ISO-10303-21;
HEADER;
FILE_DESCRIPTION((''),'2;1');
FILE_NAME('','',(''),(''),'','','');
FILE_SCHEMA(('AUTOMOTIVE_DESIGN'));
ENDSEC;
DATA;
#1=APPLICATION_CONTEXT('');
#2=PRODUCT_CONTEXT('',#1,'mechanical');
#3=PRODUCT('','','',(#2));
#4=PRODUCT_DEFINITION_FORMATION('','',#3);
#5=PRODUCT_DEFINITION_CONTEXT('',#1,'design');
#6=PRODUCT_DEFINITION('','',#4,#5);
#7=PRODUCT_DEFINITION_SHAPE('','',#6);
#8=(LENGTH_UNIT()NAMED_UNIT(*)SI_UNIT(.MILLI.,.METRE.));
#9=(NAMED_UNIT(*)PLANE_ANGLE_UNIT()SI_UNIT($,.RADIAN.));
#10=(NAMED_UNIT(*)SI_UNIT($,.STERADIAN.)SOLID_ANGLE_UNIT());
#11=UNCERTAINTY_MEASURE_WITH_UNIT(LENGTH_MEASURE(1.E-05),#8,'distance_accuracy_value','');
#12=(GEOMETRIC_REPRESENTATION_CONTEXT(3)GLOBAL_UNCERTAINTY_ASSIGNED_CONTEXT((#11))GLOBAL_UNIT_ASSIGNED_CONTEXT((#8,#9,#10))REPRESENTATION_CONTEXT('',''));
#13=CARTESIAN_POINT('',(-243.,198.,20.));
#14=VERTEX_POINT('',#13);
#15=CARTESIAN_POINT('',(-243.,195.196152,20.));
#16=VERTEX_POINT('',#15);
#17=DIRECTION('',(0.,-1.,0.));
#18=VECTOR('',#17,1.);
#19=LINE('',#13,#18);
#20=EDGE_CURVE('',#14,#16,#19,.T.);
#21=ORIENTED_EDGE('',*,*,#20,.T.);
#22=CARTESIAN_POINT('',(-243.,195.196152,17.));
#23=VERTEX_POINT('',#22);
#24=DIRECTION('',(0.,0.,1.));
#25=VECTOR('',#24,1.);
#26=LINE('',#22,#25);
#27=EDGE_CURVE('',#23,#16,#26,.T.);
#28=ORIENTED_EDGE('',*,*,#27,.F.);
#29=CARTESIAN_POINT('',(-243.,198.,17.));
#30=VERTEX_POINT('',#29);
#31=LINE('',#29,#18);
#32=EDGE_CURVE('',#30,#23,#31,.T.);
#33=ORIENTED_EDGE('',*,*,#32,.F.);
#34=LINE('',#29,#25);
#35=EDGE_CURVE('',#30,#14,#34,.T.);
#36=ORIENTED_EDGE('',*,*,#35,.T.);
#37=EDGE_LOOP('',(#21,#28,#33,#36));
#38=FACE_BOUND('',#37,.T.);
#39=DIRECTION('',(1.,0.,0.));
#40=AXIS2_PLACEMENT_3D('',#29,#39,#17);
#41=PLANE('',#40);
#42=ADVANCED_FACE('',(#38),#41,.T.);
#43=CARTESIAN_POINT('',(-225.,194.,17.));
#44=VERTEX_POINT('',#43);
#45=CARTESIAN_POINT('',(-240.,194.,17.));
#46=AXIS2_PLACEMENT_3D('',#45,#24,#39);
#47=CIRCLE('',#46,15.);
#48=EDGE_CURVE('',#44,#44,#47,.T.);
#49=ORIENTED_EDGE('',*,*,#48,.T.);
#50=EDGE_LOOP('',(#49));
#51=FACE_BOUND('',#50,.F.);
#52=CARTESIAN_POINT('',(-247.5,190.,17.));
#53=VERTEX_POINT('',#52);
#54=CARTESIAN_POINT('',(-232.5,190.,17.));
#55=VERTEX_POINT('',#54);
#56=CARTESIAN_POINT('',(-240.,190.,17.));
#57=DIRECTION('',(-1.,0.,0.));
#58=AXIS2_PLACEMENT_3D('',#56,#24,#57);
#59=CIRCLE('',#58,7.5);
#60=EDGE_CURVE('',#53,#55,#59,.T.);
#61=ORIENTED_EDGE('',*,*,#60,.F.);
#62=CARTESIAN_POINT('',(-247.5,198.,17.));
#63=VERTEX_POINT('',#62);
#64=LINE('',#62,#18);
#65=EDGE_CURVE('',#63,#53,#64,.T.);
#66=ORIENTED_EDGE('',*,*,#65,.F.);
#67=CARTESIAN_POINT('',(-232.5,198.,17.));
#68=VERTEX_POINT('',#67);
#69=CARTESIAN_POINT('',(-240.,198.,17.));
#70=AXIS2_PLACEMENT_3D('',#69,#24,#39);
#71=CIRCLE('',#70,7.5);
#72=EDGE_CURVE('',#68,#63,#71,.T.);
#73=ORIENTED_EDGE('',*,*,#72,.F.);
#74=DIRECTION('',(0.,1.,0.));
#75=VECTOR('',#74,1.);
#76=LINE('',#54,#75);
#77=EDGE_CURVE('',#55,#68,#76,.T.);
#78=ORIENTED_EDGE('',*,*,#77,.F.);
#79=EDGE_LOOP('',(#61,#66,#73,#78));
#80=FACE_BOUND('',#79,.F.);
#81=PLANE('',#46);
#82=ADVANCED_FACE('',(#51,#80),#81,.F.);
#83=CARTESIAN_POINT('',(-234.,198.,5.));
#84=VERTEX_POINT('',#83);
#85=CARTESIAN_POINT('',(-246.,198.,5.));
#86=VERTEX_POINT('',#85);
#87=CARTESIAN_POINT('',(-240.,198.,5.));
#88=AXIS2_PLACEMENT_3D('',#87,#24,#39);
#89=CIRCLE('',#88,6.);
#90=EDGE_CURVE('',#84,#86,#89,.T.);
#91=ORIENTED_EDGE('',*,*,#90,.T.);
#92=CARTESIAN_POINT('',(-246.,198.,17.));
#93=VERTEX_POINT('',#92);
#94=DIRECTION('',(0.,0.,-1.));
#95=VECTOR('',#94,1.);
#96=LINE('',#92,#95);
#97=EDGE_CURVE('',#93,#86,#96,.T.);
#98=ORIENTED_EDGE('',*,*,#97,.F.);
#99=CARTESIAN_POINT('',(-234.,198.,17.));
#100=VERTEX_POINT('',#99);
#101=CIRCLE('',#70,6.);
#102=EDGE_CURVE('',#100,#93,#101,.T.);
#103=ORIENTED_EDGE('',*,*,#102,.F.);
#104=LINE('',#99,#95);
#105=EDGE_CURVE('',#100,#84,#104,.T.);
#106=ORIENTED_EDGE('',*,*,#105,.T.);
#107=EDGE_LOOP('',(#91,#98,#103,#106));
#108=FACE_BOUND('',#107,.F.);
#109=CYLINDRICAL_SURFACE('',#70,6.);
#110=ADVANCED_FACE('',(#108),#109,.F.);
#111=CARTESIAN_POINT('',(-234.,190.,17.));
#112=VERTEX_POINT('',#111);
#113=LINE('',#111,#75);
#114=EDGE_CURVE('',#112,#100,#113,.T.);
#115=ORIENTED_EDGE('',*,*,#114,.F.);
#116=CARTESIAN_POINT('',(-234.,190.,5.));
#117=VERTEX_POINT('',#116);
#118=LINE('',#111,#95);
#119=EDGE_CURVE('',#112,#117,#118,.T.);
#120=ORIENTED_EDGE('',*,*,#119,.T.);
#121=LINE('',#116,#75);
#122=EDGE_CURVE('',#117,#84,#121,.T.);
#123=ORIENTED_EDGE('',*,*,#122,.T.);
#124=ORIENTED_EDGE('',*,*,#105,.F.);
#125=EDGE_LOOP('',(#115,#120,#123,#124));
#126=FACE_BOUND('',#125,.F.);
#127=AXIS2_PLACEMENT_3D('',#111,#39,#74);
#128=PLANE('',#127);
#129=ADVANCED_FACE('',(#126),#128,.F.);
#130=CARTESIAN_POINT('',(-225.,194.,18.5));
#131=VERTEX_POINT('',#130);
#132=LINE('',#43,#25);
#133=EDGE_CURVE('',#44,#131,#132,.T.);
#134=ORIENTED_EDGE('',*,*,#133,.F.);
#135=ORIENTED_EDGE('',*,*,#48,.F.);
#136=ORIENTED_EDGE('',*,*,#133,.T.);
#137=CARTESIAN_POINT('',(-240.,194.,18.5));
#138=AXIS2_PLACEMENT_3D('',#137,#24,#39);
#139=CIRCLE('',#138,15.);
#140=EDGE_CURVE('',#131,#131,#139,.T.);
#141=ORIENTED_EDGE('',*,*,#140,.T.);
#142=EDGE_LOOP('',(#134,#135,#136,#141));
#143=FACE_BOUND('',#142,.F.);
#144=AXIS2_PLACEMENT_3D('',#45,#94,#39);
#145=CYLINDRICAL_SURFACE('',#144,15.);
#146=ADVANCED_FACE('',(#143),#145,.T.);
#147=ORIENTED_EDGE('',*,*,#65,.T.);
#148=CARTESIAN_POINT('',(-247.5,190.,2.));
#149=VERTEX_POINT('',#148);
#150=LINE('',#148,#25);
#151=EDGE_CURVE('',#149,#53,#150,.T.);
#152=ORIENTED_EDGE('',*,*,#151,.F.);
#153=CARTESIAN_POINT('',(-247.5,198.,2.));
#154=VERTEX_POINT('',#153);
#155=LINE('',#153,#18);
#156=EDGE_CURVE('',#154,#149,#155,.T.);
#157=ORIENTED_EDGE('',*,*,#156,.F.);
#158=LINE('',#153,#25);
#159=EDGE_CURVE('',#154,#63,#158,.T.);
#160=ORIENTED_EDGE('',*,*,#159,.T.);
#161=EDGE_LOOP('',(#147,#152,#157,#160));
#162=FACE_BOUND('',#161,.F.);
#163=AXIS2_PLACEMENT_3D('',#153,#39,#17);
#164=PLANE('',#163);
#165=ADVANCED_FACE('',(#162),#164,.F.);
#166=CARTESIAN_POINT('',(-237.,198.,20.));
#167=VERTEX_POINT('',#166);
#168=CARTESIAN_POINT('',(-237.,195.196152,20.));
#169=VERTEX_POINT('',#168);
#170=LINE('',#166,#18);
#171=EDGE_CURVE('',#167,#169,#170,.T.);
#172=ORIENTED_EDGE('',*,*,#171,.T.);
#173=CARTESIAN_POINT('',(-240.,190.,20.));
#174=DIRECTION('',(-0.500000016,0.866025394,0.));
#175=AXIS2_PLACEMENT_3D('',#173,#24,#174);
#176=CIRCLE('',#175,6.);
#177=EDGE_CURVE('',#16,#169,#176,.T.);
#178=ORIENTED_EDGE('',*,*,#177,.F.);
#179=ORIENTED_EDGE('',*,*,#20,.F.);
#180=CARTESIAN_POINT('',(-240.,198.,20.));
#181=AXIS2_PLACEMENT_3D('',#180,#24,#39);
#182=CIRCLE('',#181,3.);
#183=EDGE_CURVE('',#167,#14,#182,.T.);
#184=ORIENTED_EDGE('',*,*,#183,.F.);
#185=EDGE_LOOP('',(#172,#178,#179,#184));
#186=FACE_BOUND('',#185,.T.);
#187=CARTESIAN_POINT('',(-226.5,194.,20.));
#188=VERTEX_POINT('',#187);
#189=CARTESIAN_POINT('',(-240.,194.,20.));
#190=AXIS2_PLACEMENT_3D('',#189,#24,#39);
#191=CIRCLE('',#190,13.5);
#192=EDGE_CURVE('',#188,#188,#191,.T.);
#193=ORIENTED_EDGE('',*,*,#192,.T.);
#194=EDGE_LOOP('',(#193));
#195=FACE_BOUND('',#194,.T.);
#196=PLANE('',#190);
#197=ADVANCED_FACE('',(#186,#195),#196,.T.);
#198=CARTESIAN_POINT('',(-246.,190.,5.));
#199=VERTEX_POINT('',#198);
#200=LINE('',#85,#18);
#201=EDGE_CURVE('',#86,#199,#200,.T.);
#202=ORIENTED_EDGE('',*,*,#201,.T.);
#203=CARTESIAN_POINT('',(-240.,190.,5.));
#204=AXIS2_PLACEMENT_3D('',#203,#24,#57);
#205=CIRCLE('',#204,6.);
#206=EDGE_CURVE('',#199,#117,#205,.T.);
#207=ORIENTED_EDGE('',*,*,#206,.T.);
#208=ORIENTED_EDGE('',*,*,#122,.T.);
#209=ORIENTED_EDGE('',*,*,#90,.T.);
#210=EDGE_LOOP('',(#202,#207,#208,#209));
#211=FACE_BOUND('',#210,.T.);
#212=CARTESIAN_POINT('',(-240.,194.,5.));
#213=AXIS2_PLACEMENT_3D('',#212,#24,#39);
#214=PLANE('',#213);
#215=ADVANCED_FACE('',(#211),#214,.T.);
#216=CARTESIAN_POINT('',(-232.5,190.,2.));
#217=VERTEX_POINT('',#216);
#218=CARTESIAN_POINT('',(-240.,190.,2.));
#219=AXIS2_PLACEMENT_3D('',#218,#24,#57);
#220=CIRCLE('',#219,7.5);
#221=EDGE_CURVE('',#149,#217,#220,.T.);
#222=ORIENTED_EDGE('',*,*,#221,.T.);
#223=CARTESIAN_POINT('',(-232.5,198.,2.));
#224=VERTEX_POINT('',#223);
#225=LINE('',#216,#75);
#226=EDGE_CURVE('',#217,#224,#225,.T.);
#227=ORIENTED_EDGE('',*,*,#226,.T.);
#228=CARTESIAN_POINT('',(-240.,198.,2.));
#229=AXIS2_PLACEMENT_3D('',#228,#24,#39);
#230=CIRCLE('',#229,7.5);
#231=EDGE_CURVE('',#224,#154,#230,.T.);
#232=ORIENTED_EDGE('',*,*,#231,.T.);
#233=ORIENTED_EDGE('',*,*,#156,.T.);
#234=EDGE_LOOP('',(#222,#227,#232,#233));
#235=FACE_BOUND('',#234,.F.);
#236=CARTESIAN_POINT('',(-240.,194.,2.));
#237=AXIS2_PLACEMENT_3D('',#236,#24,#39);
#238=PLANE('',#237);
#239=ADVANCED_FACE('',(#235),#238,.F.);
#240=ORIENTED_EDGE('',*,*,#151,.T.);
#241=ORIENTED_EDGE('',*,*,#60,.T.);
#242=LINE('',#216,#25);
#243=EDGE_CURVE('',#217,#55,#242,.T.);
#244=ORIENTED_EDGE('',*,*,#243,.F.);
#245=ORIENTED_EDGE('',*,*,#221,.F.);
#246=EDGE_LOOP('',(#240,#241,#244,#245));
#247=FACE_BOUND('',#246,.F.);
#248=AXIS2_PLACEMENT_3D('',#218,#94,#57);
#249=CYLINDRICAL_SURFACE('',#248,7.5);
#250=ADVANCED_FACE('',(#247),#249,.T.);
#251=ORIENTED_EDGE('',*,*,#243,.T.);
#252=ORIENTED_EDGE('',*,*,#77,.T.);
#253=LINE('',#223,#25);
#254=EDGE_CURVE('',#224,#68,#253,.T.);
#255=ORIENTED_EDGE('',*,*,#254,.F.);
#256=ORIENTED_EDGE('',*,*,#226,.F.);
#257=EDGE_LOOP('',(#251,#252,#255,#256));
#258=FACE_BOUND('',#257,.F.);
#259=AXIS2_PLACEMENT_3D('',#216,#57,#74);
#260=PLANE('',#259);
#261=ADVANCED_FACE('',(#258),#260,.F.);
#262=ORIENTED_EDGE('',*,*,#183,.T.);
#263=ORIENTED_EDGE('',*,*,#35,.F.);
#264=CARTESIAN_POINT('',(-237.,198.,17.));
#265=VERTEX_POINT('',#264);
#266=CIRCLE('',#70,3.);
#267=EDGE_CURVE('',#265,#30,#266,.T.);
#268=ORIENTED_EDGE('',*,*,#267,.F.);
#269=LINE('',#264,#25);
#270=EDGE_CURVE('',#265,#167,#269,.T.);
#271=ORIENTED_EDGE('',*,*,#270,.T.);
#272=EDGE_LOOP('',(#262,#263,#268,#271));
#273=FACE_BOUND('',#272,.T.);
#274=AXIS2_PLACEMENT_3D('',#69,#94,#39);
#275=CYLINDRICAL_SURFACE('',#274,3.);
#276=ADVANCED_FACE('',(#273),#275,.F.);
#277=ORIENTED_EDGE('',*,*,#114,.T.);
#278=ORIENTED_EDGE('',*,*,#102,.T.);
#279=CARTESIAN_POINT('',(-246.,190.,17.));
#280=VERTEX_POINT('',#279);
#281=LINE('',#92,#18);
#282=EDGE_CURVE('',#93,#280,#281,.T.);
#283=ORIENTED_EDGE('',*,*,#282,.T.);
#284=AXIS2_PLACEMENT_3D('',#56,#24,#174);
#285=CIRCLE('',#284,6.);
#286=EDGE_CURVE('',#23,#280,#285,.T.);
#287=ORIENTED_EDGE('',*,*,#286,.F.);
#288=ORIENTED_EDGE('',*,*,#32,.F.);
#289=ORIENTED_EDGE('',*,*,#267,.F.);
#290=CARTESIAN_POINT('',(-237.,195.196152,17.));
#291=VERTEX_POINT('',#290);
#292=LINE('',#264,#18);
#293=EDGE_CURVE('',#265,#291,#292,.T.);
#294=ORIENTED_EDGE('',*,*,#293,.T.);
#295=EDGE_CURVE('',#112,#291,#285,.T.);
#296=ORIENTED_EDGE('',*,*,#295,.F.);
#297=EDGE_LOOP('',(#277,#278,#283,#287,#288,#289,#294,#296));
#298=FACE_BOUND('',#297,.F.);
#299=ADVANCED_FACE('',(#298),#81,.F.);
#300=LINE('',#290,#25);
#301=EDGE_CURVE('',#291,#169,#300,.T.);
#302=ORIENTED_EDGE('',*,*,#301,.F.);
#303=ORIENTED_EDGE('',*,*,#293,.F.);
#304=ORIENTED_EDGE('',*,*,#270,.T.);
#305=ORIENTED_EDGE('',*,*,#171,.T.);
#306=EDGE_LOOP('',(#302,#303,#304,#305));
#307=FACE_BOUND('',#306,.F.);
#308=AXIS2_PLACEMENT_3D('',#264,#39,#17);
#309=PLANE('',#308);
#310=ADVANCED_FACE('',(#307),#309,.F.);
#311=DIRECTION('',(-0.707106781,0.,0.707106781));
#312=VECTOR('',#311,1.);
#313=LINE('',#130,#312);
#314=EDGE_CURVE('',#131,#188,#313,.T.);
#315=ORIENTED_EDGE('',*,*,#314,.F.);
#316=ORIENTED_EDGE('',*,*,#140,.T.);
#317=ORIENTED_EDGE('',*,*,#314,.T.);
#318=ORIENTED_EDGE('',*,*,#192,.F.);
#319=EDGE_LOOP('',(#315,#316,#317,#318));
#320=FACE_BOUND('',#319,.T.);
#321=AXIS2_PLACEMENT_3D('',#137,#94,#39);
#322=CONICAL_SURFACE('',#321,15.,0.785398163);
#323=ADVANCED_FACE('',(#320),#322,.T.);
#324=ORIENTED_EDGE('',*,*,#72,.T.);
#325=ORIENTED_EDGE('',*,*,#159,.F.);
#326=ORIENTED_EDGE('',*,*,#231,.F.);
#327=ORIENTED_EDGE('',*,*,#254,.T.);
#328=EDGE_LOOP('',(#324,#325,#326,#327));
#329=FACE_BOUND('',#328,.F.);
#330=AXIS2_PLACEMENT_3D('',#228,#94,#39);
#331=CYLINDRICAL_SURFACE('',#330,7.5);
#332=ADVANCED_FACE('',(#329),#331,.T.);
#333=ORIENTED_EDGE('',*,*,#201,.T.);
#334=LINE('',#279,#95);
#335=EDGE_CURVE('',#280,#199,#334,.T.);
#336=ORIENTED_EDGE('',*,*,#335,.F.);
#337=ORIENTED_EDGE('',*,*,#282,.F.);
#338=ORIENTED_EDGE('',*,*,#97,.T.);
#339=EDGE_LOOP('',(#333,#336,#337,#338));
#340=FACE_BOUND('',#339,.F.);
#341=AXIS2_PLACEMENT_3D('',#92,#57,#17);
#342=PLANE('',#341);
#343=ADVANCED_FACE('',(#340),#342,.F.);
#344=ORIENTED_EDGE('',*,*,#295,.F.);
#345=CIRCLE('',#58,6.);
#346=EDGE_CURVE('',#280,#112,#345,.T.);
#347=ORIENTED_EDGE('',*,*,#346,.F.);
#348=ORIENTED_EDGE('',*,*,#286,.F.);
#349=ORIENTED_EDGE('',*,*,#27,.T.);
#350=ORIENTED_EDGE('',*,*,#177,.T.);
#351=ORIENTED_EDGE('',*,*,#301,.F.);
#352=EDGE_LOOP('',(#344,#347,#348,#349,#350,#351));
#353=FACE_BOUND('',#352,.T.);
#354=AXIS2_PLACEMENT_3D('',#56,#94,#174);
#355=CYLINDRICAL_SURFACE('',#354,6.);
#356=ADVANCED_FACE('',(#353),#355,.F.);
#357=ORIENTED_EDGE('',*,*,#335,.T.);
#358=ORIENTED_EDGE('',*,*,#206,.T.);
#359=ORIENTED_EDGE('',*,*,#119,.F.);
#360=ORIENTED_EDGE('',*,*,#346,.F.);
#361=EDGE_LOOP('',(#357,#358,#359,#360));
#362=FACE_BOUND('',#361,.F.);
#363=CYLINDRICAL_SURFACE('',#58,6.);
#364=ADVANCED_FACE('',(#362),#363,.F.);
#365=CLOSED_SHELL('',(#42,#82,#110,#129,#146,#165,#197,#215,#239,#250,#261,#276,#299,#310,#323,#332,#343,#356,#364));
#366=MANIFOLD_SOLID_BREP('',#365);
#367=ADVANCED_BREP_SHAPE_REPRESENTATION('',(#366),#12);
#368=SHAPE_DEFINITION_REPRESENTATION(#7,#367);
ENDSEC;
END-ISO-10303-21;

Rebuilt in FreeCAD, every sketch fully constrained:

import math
import FreeCAD as App
import Part
import Sketcher
from FreeCAD import Vector
Q = App.Units.Quantity


def edges_at(feature, points):
    """Names of the edges that pass closest to the given points."""
    edges = feature.Shape.Edges
    near = lambda p: min(range(len(edges)), key=lambda i: edges[i].distToShape(Part.Vertex(*p))[0])
    return sorted({f"Edge{near(p) + 1}" for p in points})

doc = App.newDocument("Part")
body = doc.addObject("PartDesign::Body", "Body")

# Sketch on XY plane
sketch1 = doc.addObject("Sketcher::SketchObject", "Sketch")
body.addObject(sketch1)
sketch1.AttachmentSupport = (doc.XY_Plane, [""])
sketch1.MapMode = "FlatFace"
sketch1.addGeometry(Part.ArcOfCircle(Part.Circle(Vector(0, 8, 0), Vector(0, 0, 1), 8), math.radians(0), math.radians(180)), False)
sketch1.addGeometry(Part.LineSegment(Vector(-8, 8, 0), Vector(-8, 0, 0)), False)
sketch1.addGeometry(Part.ArcOfCircle(Part.Circle(Vector(0, 0, 0), Vector(0, 0, 1), 8), math.radians(180), math.radians(360)), False)
sketch1.addGeometry(Part.LineSegment(Vector(8, 0, 0), Vector(8, 8, 0)), False)
sketch1.addConstraint(Sketcher.Constraint("Tangent", 0, 2, 1, 1))
sketch1.addConstraint(Sketcher.Constraint("Tangent", 1, 2, 2, 1))
sketch1.addConstraint(Sketcher.Constraint("Tangent", 2, 2, 3, 1))
sketch1.addConstraint(Sketcher.Constraint("Tangent", 3, 2, 0, 1))
sketch1.addConstraint(Sketcher.Constraint("Vertical", 1))
sketch1.addConstraint(Sketcher.Constraint("Vertical", 3))
sketch1.addConstraint(Sketcher.Constraint("Coincident", 2, 3, -1, 1))
sketch1.addConstraint(Sketcher.Constraint("Radius", 0, Q("7.5 mm")))
sketch1.addConstraint(Sketcher.Constraint("DistanceY", 1, 2, 1, 1, Q("8 mm")))
pad1 = doc.addObject("PartDesign::Pad", "Pad")
body.addObject(pad1)
pad1.Profile = sketch1
pad1.Length = 15

# Sketch on XY plane
sketch2 = doc.addObject("Sketcher::SketchObject", "Sketch001")
body.addObject(sketch2)
sketch2.AttachmentSupport = (doc.XY_Plane, [""])
sketch2.MapMode = "FlatFace"
sketch2.AttachmentOffset = App.Placement(Vector(0, 0, 15), App.Rotation())
sketch2.addGeometry(Part.ArcOfCircle(Part.Circle(Vector(0, 0, 0), Vector(0, 0, 1), 6), math.radians(180), math.radians(360)), False)
sketch2.addGeometry(Part.LineSegment(Vector(6, 0, 0), Vector(6, 8, 0)), False)
sketch2.addGeometry(Part.ArcOfCircle(Part.Circle(Vector(0, 8, 0), Vector(0, 0, 1), 6), math.radians(0), math.radians(180)), False)
sketch2.addGeometry(Part.LineSegment(Vector(-6, 8, 0), Vector(-6, 0, 0)), False)
sketch2.addConstraint(Sketcher.Constraint("Tangent", 0, 2, 1, 1))
sketch2.addConstraint(Sketcher.Constraint("Tangent", 1, 2, 2, 1))
sketch2.addConstraint(Sketcher.Constraint("Tangent", 2, 2, 3, 1))
sketch2.addConstraint(Sketcher.Constraint("Tangent", 3, 2, 0, 1))
sketch2.addConstraint(Sketcher.Constraint("Vertical", 1))
sketch2.addConstraint(Sketcher.Constraint("Vertical", 3))
sketch2.addConstraint(Sketcher.Constraint("Coincident", 0, 3, -1, 1))
sketch2.addConstraint(Sketcher.Constraint("Radius", 0, Q("6 mm")))
sketch2.addConstraint(Sketcher.Constraint("DistanceY", 1, 1, 1, 2, Q("8 mm")))
pocket1 = doc.addObject("PartDesign::Pocket", "Pocket")
body.addObject(pocket1)
pocket1.Profile = sketch2
pocket1.Length = 12

# Sketch on XY plane
sketch3 = doc.addObject("Sketcher::SketchObject", "Sketch002")
body.addObject(sketch3)
sketch3.AttachmentSupport = (doc.XY_Plane, [""])
sketch3.MapMode = "FlatFace"
sketch3.AttachmentOffset = App.Placement(Vector(0, 0, 15), App.Rotation())
sketch3.addGeometry(Part.Circle(Vector(0, 4, 0), Vector(0, 0, 1), 15), False)
sketch3.addGeometry(Part.ArcOfCircle(Part.Circle(Vector(0, 0, 0), Vector(0, 0, 1), 6), math.radians(120), math.radians(420)), False)
sketch3.addGeometry(Part.LineSegment(Vector(-3, 5.2, 0), Vector(-3, 8, 0)), False)
sketch3.addGeometry(Part.ArcOfCircle(Part.Circle(Vector(0, 8, 0), Vector(0, 0, 1), 3), math.radians(0), math.radians(180)), False)
sketch3.addGeometry(Part.LineSegment(Vector(3, 8, 0), Vector(3, 5.2, 0)), False)
sketch3.addConstraint(Sketcher.Constraint("Coincident", 1, 1, 2, 1))
sketch3.addConstraint(Sketcher.Constraint("Tangent", 2, 2, 3, 2))
sketch3.addConstraint(Sketcher.Constraint("Tangent", 3, 1, 4, 1))
sketch3.addConstraint(Sketcher.Constraint("Coincident", 4, 2, 1, 2))
sketch3.addConstraint(Sketcher.Constraint("Vertical", 2))
sketch3.addConstraint(Sketcher.Constraint("Vertical", 4))
sketch3.addConstraint(Sketcher.Constraint("Coincident", 1, 3, -1, 1))
sketch3.addConstraint(Sketcher.Constraint("PointOnObject", 0, 3, -2))
sketch3.addConstraint(Sketcher.Constraint("PointOnObject", 3, 3, -2))
sketch3.addConstraint(Sketcher.Constraint("Diameter", 0, Q("30 mm")))
sketch3.addConstraint(Sketcher.Constraint("Radius", 1, Q("6 mm")))
sketch3.addConstraint(Sketcher.Constraint("Radius", 3, Q("3 mm")))
sketch3.addConstraint(Sketcher.Constraint("DistanceY", -1, 1, 0, 3, Q("4 mm")))
sketch3.addConstraint(Sketcher.Constraint("DistanceY", -1, 1, 3, 3, Q("8 mm")))
pad2 = doc.addObject("PartDesign::Pad", "Pad001")
body.addObject(pad2)
pad2.Profile = sketch3
pad2.Length = 3
doc.recompute()

chamfer = doc.addObject("PartDesign::Chamfer", "Chamfer")
body.addObject(chamfer)
chamfer.Base = (pad2, edges_at(pad2, [(-15, 4, 18)]))
chamfer.Size = 1.5
body2 = doc.addObject("PartDesign::Body", "Body001")
doc.recompute()

body.Placement = App.Placement(Vector(-240, 190, 2), App.Rotation(Vector(0, 0, 1), 0))
boolean = doc.addObject("PartDesign::Boolean", "Boolean")
body2.addObject(boolean)
boolean.Type = "Fuse"
boolean.addObjects([body])

doc.recompute()
